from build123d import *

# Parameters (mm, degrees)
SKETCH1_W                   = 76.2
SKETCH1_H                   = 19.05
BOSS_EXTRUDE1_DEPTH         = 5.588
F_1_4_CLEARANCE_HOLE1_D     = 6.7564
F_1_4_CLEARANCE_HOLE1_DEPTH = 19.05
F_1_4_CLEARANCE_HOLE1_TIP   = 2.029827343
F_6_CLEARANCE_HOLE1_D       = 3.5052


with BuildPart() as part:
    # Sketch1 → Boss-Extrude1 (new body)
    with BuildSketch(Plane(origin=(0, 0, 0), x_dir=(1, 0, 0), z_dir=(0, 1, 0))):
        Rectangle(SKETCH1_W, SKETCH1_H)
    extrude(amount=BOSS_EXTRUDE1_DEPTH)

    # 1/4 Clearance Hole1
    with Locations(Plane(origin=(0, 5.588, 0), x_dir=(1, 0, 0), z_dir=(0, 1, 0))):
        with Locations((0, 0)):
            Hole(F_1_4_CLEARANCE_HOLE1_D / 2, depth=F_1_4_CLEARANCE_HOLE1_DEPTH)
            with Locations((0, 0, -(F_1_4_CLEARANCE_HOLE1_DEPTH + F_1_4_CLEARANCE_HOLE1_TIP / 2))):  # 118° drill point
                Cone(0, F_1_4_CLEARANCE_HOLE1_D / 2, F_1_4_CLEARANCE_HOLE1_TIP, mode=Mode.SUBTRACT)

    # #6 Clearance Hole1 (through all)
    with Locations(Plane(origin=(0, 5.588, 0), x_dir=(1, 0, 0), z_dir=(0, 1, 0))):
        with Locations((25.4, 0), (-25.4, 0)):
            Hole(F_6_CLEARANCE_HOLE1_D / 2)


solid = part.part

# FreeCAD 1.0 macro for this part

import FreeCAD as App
import Part
import Sketcher
from FreeCAD import Vector
Q = App.Units.Quantity


def add_polygon(sketch, points):
    """Adds a closed chain of lines whose ends are joined by coincident constraints."""
    first, n = sketch.GeometryCount, len(points)
    for a, b in zip(points, points[1:] + points[:1]):
        sketch.addGeometry(Part.LineSegment(App.Vector(*a, 0), App.Vector(*b, 0)), False)
    for i in range(n):
        sketch.addConstraint(Sketcher.Constraint("Coincident", first + i, 2, first + (i + 1) % n, 1))

doc = App.newDocument("Part")
body = doc.addObject("PartDesign::Body", "Body")

sketch1 = body.newObject("Sketcher::SketchObject", "Sketch")
sketch1.AttachmentSupport = (doc.getObject("XZ_Plane"), [""])
sketch1.MapMode = "FlatFace"
add_polygon(sketch1, [(-38, -10), (-38, 10), (38, 10), (38, -10)])
sketch1.addConstraint(Sketcher.Constraint("Vertical", 0))
sketch1.addConstraint(Sketcher.Constraint("Horizontal", 1))
sketch1.addConstraint(Sketcher.Constraint("Vertical", 2))
sketch1.addConstraint(Sketcher.Constraint("Horizontal", 3))
sketch1.addConstraint(Sketcher.Constraint("Symmetric", 0, 2, 2, 2, -1, 1))
sketch1.addConstraint(Sketcher.Constraint("DistanceX", 1, 1, 1, 2, Q("3 in")))
sketch1.addConstraint(Sketcher.Constraint("DistanceY", 0, 1, 0, 2, Q("0.75 in")))
pad1 = body.newObject("PartDesign::Pad", "Pad")
pad1.Profile = sketch1
pad1.Length = Q("0.22 in")
pad1.Reversed = True

sketch2 = body.newObject("Sketcher::SketchObject", "Sketch001")
sketch2.AttachmentSupport = (doc.getObject("XZ_Plane"), [""])
sketch2.MapMode = "FlatFace"
sketch2.AttachmentOffset = App.Placement(Vector(0, 0, -0.22 * 25.4), App.Rotation())
sketch2.addGeometry(Part.Circle(Vector(0, 0, 0), Vector(0, 0, 1), 3.4), False)
sketch2.addConstraint(Sketcher.Constraint("Coincident", 0, 3, -1, 1))
sketch2.addConstraint(Sketcher.Constraint("Diameter", 0, Q("0.266 in")))
doc.recompute()
hole = body.newObject("PartDesign::Hole", "Hole")
hole.Profile = sketch2
hole.ThreadType = "None"
hole.Diameter = Q("0.266 in")
hole.DepthType = "Dimension"
hole.Depth = Q("0.75 in")
hole.DrillPoint = "Angled"
hole.DrillPointAngle = 118
hole.Reversed = True

sketch3 = body.newObject("Sketcher::SketchObject", "Sketch002")
sketch3.AttachmentSupport = (doc.getObject("XZ_Plane"), [""])
sketch3.MapMode = "FlatFace"
sketch3.AttachmentOffset = App.Placement(Vector(0, 0, -0.22 * 25.4), App.Rotation())
sketch3.addGeometry(Part.Circle(Vector(25.4, 0, 0), Vector(0, 0, 1), 1.8), False)
sketch3.addGeometry(Part.Circle(Vector(-25.4, 0, 0), Vector(0, 0, 1), 1.8), False)
sketch3.addConstraint(Sketcher.Constraint("Equal", 0, 1))
sketch3.addConstraint(Sketcher.Constraint("Symmetric", 0, 3, 1, 3, -1, 1))
sketch3.addConstraint(Sketcher.Constraint("PointOnObject", 0, 3, -1))
sketch3.addConstraint(Sketcher.Constraint("Diameter", 0, Q("0.138 in")))
sketch3.addConstraint(Sketcher.Constraint("DistanceX", -1, 1, 0, 3, Q("1 in")))
doc.recompute()
hole2 = body.newObject("PartDesign::Hole", "Hole001")
hole2.Profile = sketch3
hole2.ThreadType = "None"
hole2.Diameter = Q("0.138 in")
hole2.DepthType = "ThroughAll"
hole2.Reversed = True

doc.recompute()
